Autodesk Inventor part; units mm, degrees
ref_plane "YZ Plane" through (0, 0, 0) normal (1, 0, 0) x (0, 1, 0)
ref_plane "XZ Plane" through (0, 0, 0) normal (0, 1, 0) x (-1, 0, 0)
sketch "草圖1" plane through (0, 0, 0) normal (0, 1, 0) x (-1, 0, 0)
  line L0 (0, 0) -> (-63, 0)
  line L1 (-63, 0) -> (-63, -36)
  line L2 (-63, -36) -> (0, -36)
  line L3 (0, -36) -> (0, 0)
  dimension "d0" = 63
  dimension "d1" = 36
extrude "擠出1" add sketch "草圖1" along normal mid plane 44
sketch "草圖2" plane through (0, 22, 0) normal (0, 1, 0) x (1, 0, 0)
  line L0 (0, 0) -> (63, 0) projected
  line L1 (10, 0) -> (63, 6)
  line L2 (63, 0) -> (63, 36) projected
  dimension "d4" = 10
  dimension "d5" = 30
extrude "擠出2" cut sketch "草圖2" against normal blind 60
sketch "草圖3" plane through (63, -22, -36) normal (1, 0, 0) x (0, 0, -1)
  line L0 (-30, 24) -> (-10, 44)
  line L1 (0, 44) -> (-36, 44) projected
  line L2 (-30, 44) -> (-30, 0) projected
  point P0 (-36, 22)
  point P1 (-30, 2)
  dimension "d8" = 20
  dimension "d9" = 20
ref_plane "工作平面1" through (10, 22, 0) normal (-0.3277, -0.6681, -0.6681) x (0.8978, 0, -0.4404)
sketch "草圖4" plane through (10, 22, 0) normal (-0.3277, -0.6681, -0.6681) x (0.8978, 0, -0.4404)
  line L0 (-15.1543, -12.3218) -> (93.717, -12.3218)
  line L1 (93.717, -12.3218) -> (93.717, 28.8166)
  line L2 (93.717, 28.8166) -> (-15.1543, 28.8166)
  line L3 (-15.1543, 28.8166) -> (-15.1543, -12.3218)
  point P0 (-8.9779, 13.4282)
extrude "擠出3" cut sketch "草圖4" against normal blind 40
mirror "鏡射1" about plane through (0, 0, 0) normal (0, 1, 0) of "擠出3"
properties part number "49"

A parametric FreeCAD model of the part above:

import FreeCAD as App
import Part
import Sketcher

V = App.Vector
Q = App.Units.Quantity

doc = App.newDocument("Part")
body = doc.addObject("PartDesign::Body", "Body")

sketch1 = doc.addObject("Sketcher::SketchObject", "Sketch")
body.addObject(sketch1)
sketch1.AttachmentSupport = (doc.XZ_Plane, [""])
sketch1.MapMode = "FlatFace"
sketch1.addGeometry(Part.LineSegment(V(0, -36, 0), V(0, 0, 0)), False)
sketch1.addGeometry(Part.LineSegment(V(0, 0, 0), V(63, 0, 0)), False)
sketch1.addGeometry(Part.LineSegment(V(63, 0, 0), V(63, -36, 0)), False)
sketch1.addGeometry(Part.LineSegment(V(63, -36, 0), V(0, -36, 0)), False)
sketch1.addConstraint(Sketcher.Constraint("Coincident", 0, 2, 1, 1))
sketch1.addConstraint(Sketcher.Constraint("Coincident", 1, 2, 2, 1))
sketch1.addConstraint(Sketcher.Constraint("Coincident", 2, 2, 3, 1))
sketch1.addConstraint(Sketcher.Constraint("Coincident", 3, 2, 0, 1))
sketch1.addConstraint(Sketcher.Constraint("Vertical", 0))
sketch1.addConstraint(Sketcher.Constraint("Horizontal", 1))
sketch1.addConstraint(Sketcher.Constraint("Vertical", 2))
sketch1.addConstraint(Sketcher.Constraint("Horizontal", 3))
sketch1.addConstraint(Sketcher.Constraint("Coincident", 0, 2, -1, 1))
sketch1.addConstraint(Sketcher.Constraint("DistanceX", 1, 1, 1, 2, Q("63 mm")))
sketch1.addConstraint(Sketcher.Constraint("DistanceY", 0, 1, 0, 2, Q("36 mm")))
pad1 = doc.addObject("PartDesign::Pad", "Pad")
body.addObject(pad1)
pad1.Profile = sketch1
pad1.Length = 44
pad1.Midplane = True

sketch2 = doc.addObject("Sketcher::SketchObject", "Sketch001")
body.addObject(sketch2)
sketch2.AttachmentSupport = (doc.XZ_Plane, [""])
sketch2.MapMode = "FlatFace"
sketch2.AttachmentOffset = App.Placement(V(0, 0, -22), App.Rotation())
sketch2.addGeometry(Part.LineSegment(V(63, -6, 0), V(10, 0, 0)), False)
sketch2.addGeometry(Part.LineSegment(V(10, 0, 0), V(63, 0, 0)), False)
sketch2.addGeometry(Part.LineSegment(V(63, 0, 0), V(63, -6, 0)), False)
sketch2.addConstraint(Sketcher.Constraint("Coincident", 0, 2, 1, 1))
sketch2.addConstraint(Sketcher.Constraint("Coincident", 1, 2, 2, 1))
sketch2.addConstraint(Sketcher.Constraint("Coincident", 2, 2, 0, 1))
sketch2.addConstraint(Sketcher.Constraint("Horizontal", 1))
sketch2.addConstraint(Sketcher.Constraint("Vertical", 2))
sketch2.addConstraint(Sketcher.Constraint("PointOnObject", 0, 2, -1))
sketch2.addConstraint(Sketcher.Constraint("DistanceX", -1, 1, 0, 2, Q("10 mm")))
sketch2.addConstraint(Sketcher.Constraint("DistanceX", 1, 1, 1, 2, Q("53 mm")))
sketch2.addConstraint(Sketcher.Constraint("DistanceY", 2, 2, 2, 1, Q("6 mm")))
pocket1 = doc.addObject("PartDesign::Pocket", "Pocket")
body.addObject(pocket1)
pocket1.Profile = sketch2
pocket1.Length = 60
pocket1.Reversed = True

sketch3 = doc.addObject("Sketcher::SketchObject", "Sketch002")
body.addObject(sketch3)
sketch3.Placement = App.Placement(V(10, 22, 0), App.Rotation(V(0.897808615, 0.000014817, -0.440385844), V(0.294216602, -0.744102239, 0.599790339), V(-0.327683205, -0.668065759, -0.668065759), "ZXY"))
sketch3.addGeometry(Part.LineSegment(V(-15.1543, 28.8166, 0), V(-15.1543, -12.3218, 0)), False)
sketch3.addGeometry(Part.LineSegment(V(-15.1543, -12.3218, 0), V(93.717, -12.3218, 0)), False)
sketch3.addGeometry(Part.LineSegment(V(93.717, -12.3218, 0), V(93.717, 28.8166, 0)), False)
sketch3.addGeometry(Part.LineSegment(V(93.717, 28.8166, 0), V(-15.1543, 28.8166, 0)), False)
sketch3.addConstraint(Sketcher.Constraint("Coincident", 0, 2, 1, 1))
sketch3.addConstraint(Sketcher.Constraint("Coincident", 1, 2, 2, 1))
sketch3.addConstraint(Sketcher.Constraint("Coincident", 2, 2, 3, 1))
sketch3.addConstraint(Sketcher.Constraint("Coincident", 3, 2, 0, 1))
sketch3.addConstraint(Sketcher.Constraint("Vertical", 0))
sketch3.addConstraint(Sketcher.Constraint("Horizontal", 1))
sketch3.addConstraint(Sketcher.Constraint("Vertical", 2))
sketch3.addConstraint(Sketcher.Constraint("Horizontal", 3))
sketch3.addConstraint(Sketcher.Constraint("DistanceX", 1, 1, 1, 2, Q("108.8713 mm")))
sketch3.addConstraint(Sketcher.Constraint("DistanceY", 0, 2, 0, 1, Q("41.1384 mm")))
sketch3.addConstraint(Sketcher.Constraint("DistanceX", -1, 1, 1, 2, Q("93.717 mm")))
sketch3.addConstraint(Sketcher.Constraint("DistanceY", 0, 2, -1, 1, Q("12.3218 mm")))
pocket2 = doc.addObject("PartDesign::Pocket", "Pocket001")
body.addObject(pocket2)
pocket2.Profile = sketch3
pocket2.Length = 40
doc.recompute()

mirrored = doc.addObject("PartDesign::Mirrored", "Mirrored")
body.addObject(mirrored)
mirrored.Originals = [pocket2]
mirrored.MirrorPlane = (doc.XZ_Plane, [""])
body.Tip = mirrored

doc.recompute()
